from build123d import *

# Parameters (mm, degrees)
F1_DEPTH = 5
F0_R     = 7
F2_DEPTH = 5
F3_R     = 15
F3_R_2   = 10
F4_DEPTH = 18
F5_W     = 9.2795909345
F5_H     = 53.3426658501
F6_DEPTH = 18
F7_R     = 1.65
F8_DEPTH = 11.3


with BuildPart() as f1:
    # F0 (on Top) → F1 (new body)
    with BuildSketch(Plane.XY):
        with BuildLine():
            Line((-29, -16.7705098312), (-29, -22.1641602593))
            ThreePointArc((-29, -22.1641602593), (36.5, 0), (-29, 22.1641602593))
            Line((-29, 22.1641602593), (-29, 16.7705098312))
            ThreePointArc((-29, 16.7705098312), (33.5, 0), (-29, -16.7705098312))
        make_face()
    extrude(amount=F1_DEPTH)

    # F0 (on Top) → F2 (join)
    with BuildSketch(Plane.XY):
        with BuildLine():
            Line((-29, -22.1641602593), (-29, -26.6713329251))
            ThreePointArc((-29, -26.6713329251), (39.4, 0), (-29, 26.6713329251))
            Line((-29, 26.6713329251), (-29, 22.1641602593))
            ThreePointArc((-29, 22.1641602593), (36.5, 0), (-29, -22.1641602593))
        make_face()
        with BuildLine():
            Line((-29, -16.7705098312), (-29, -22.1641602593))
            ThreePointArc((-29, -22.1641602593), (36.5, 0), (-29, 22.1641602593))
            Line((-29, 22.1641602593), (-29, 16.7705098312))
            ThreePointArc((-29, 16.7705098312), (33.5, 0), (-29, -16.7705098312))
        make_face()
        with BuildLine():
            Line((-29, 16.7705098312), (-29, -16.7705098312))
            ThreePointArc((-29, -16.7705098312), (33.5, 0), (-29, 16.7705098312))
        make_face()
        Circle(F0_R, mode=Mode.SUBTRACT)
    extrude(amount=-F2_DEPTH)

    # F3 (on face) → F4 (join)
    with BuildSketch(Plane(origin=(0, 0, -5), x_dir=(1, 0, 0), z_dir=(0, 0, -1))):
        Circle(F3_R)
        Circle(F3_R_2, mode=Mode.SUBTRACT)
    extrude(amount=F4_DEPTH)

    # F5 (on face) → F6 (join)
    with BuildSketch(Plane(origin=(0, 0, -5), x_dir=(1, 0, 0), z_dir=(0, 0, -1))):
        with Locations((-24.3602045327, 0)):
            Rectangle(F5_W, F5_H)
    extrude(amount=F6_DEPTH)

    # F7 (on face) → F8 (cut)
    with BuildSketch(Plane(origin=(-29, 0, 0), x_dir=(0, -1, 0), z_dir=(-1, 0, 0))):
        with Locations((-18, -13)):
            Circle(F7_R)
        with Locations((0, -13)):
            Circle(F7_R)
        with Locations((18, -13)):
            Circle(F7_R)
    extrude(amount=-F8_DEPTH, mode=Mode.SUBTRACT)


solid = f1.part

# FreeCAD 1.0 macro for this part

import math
import FreeCAD as App
import Part
import Sketcher
from FreeCAD import Vector

doc = App.newDocument("Part")
params = doc.addObject("Spreadsheet::Sheet", "Params")
for row, (alias, value) in enumerate([
    ("sketch1_radius", "36.5 mm"),
    ("sketch1_radius2", "33.5 mm"),
    ("pad1_length", "5 mm"),
    ("sketch2_diameter", "14 mm"),
    ("sketch2_radius", "39.4 mm"),
    ("pad2_length", "5 mm"),
    ("sketch3_diameter", "30 mm"),
    ("sketch3_diameter2", "20 mm"),
    ("pad3_length", "18 mm"),
    ("pad4_length", "18 mm"),
    ("sketch5_diameter", "3.3 mm"),
    ("pocket1_length", "11.3 mm"),
], start=1):
    params.set(f"A{row}", alias)
    params.set(f"B{row}", "=" + value)
    params.setAlias(f"B{row}", alias)

body = doc.addObject("PartDesign::Body", "Body")

# Sketch on XY plane
sketch1 = body.newObject("Sketcher::SketchObject", "Sketch")
sketch1.AttachmentSupport = (doc.getObject("XY_Plane"), [""])
sketch1.MapMode = "FlatFace"
sketch1.addGeometry([
    Part.LineSegment(Vector(-29, -17, 0), Vector(-29, -22, 0)),
    Part.ArcOfCircle(Part.Circle(Vector(0, 0, 0), Vector(0, 0, 1), 36), math.radians(-143), math.radians(143)),
    Part.LineSegment(Vector(-29, 22, 0), Vector(-29, 17, 0)),
    Part.ArcOfCircle(Part.Circle(Vector(0, 0, 0), Vector(0, 0, 1), 34), math.radians(-150), math.radians(150)),
], False)
sketch1.addConstraint([
    Sketcher.Constraint("Coincident", 0, 2, 1, 1),
    Sketcher.Constraint("Coincident", 1, 2, 2, 1),
    Sketcher.Constraint("Coincident", 2, 2, 3, 2),
    Sketcher.Constraint("Coincident", 3, 1, 0, 1),
    Sketcher.Constraint("Vertical", 0),
    Sketcher.Constraint("Vertical", 2),
    Sketcher.Constraint("Coincident", 1, 3, -1, 1),
    Sketcher.Constraint("Coincident", 3, 3, -1, 1),
    Sketcher.Constraint("Vertical", 0, 2, 1, 2),
    Sketcher.Constraint("Radius", 1, 36.5),
    Sketcher.Constraint("Radius", 3, 33.5),
    Sketcher.Constraint("DistanceX", 0, 2, -1, 1, 29.0),
])
sketch1.setExpression("Constraints[9]", "Params.sketch1_radius")
sketch1.setExpression("Constraints[10]", "Params.sketch1_radius2")
pad1 = body.newObject("PartDesign::Pad", "Pad")
pad1.Profile = sketch1
pad1.setExpression("Length", "Params.pad1_length")

# Sketch on XY plane
sketch2 = body.newObject("Sketcher::SketchObject", "Sketch001")
sketch2.AttachmentSupport = (doc.getObject("XY_Plane"), [""])
sketch2.MapMode = "FlatFace"
sketch2.addGeometry([
    Part.ArcOfCircle(Part.Circle(Vector(0, 0, 0), Vector(0, 0, 1), 39), math.radians(-137), math.radians(137)),
    Part.LineSegment(Vector(-29, 27, 0), Vector(-29, -27, 0)),
    Part.Circle(Vector(0, 0, 0), Vector(0, 0, 1), 7),
], False)
sketch2.addConstraint([
    Sketcher.Constraint("Coincident", 0, 1, 1, 2),
    Sketcher.Constraint("Coincident", 1, 1, 0, 2),
    Sketcher.Constraint("Vertical", 1),
    Sketcher.Constraint("Coincident", 0, 3, -1, 1),
    Sketcher.Constraint("Coincident", 2, 3, -1, 1),
    Sketcher.Constraint("Diameter", 2, 14.0),
    Sketcher.Constraint("Radius", 0, 39.4),
    Sketcher.Constraint("DistanceX", 0, 1, -1, 1, 29.0),
])
sketch2.setExpression("Constraints[5]", "Params.sketch2_diameter")
sketch2.setExpression("Constraints[6]", "Params.sketch2_radius")
pad2 = body.newObject("PartDesign::Pad", "Pad001")
pad2.Profile = sketch2
pad2.setExpression("Length", "Params.pad2_length")
pad2.Reversed = True

# Sketch on XY plane
sketch3 = body.newObject("Sketcher::SketchObject", "Sketch002")
sketch3.AttachmentSupport = (doc.getObject("XY_Plane"), [""])
sketch3.MapMode = "FlatFace"
sketch3.AttachmentOffset = App.Placement(Vector(0, 0, -5), App.Rotation())
sketch3.addGeometry([
    Part.Circle(Vector(0, 0, 0), Vector(0, 0, 1), 15),
    Part.Circle(Vector(0, 0, 0), Vector(0, 0, 1), 10),
], False)
sketch3.addConstraint([
    Sketcher.Constraint("Coincident", 0, 3, -1, 1),
    Sketcher.Constraint("Coincident", 1, 3, -1, 1),
    Sketcher.Constraint("Diameter", 0, 30.0),
    Sketcher.Constraint("Diameter", 1, 20.0),
])
sketch3.setExpression("Constraints[2]", "Params.sketch3_diameter")
sketch3.setExpression("Constraints[3]", "Params.sketch3_diameter2")
pad3 = body.newObject("PartDesign::Pad", "Pad002")
pad3.Profile = sketch3
pad3.setExpression("Length", "Params.pad3_length")
pad3.Reversed = True

# Sketch on XY plane
sketch4 = body.newObject("Sketcher::SketchObject", "Sketch003")
sketch4.AttachmentSupport = (doc.getObject("XY_Plane"), [""])
sketch4.MapMode = "FlatFace"
sketch4.AttachmentOffset = App.Placement(Vector(0, 0, -5), App.Rotation())
sketch4.addGeometry([
    Part.LineSegment(Vector(-29, -27, 0), Vector(-29, 27, 0)),
    Part.LineSegment(Vector(-29, 27, 0), Vector(-20, 27, 0)),
    Part.LineSegment(Vector(-20, 27, 0), Vector(-20, -27, 0)),
    Part.LineSegment(Vector(-20, -27, 0), Vector(-29, -27, 0)),
], False)
sketch4.addConstraint([
    Sketcher.Constraint("Coincident", 0, 2, 1, 1),
    Sketcher.Constraint("Coincident", 1, 2, 2, 1),
    Sketcher.Constraint("Coincident", 2, 2, 3, 1),
    Sketcher.Constraint("Coincident", 3, 2, 0, 1),
    Sketcher.Constraint("Vertical", 0),
    Sketcher.Constraint("Horizontal", 1),
    Sketcher.Constraint("Vertical", 2),
    Sketcher.Constraint("Horizontal", 3),
    Sketcher.Constraint("DistanceX", 0, 2, -1, 1, 29.0),
    Sketcher.Constraint("DistanceX", 1, 1, 1, 2, 9.279591),
    Sketcher.Constraint("DistanceY", 0, 1, 0, 2, 53.342666),
    Sketcher.Constraint("DistanceY", -1, 1, 0, 2, 26.671333),
])
pad4 = body.newObject("PartDesign::Pad", "Pad003")
pad4.Profile = sketch4
pad4.setExpression("Length", "Params.pad4_length")
pad4.Reversed = True

# Sketch on YZ plane
sketch5 = body.newObject("Sketcher::SketchObject", "Sketch004")
sketch5.AttachmentSupport = (doc.getObject("YZ_Plane"), [""])
sketch5.MapMode = "FlatFace"
sketch5.AttachmentOffset = App.Placement(Vector(0, 0, -29), App.Rotation())
sketch5.addGeometry([
    Part.Circle(Vector(18, -13, 0), Vector(0, 0, 1), 1.6),
    Part.Circle(Vector(0, -13, 0), Vector(0, 0, 1), 1.6),
    Part.Circle(Vector(-18, -13, 0), Vector(0, 0, 1), 1.6),
], False)
sketch5.addConstraint([
    Sketcher.Constraint("Equal", 0, 1),
    Sketcher.Constraint("Equal", 1, 2),
    Sketcher.Constraint("Symmetric", 0, 3, 2, 3, -2),
    Sketcher.Constraint("PointOnObject", 1, 3, -2),
    Sketcher.Constraint("Horizontal", 0, 3, 1, 3),
    Sketcher.Constraint("Diameter", 0, 3.3),
    Sketcher.Constraint("DistanceX", -1, 1, 0, 3, 18.0),
    Sketcher.Constraint("DistanceY", 0, 3, -1, 1, 13.0),
])
sketch5.setExpression("Constraints[5]", "Params.sketch5_diameter")
pocket1 = body.newObject("PartDesign::Pocket", "Pocket")
pocket1.Profile = sketch5
pocket1.setExpression("Length", "Params.pocket1_length")
pocket1.Reversed = True

doc.recompute()
